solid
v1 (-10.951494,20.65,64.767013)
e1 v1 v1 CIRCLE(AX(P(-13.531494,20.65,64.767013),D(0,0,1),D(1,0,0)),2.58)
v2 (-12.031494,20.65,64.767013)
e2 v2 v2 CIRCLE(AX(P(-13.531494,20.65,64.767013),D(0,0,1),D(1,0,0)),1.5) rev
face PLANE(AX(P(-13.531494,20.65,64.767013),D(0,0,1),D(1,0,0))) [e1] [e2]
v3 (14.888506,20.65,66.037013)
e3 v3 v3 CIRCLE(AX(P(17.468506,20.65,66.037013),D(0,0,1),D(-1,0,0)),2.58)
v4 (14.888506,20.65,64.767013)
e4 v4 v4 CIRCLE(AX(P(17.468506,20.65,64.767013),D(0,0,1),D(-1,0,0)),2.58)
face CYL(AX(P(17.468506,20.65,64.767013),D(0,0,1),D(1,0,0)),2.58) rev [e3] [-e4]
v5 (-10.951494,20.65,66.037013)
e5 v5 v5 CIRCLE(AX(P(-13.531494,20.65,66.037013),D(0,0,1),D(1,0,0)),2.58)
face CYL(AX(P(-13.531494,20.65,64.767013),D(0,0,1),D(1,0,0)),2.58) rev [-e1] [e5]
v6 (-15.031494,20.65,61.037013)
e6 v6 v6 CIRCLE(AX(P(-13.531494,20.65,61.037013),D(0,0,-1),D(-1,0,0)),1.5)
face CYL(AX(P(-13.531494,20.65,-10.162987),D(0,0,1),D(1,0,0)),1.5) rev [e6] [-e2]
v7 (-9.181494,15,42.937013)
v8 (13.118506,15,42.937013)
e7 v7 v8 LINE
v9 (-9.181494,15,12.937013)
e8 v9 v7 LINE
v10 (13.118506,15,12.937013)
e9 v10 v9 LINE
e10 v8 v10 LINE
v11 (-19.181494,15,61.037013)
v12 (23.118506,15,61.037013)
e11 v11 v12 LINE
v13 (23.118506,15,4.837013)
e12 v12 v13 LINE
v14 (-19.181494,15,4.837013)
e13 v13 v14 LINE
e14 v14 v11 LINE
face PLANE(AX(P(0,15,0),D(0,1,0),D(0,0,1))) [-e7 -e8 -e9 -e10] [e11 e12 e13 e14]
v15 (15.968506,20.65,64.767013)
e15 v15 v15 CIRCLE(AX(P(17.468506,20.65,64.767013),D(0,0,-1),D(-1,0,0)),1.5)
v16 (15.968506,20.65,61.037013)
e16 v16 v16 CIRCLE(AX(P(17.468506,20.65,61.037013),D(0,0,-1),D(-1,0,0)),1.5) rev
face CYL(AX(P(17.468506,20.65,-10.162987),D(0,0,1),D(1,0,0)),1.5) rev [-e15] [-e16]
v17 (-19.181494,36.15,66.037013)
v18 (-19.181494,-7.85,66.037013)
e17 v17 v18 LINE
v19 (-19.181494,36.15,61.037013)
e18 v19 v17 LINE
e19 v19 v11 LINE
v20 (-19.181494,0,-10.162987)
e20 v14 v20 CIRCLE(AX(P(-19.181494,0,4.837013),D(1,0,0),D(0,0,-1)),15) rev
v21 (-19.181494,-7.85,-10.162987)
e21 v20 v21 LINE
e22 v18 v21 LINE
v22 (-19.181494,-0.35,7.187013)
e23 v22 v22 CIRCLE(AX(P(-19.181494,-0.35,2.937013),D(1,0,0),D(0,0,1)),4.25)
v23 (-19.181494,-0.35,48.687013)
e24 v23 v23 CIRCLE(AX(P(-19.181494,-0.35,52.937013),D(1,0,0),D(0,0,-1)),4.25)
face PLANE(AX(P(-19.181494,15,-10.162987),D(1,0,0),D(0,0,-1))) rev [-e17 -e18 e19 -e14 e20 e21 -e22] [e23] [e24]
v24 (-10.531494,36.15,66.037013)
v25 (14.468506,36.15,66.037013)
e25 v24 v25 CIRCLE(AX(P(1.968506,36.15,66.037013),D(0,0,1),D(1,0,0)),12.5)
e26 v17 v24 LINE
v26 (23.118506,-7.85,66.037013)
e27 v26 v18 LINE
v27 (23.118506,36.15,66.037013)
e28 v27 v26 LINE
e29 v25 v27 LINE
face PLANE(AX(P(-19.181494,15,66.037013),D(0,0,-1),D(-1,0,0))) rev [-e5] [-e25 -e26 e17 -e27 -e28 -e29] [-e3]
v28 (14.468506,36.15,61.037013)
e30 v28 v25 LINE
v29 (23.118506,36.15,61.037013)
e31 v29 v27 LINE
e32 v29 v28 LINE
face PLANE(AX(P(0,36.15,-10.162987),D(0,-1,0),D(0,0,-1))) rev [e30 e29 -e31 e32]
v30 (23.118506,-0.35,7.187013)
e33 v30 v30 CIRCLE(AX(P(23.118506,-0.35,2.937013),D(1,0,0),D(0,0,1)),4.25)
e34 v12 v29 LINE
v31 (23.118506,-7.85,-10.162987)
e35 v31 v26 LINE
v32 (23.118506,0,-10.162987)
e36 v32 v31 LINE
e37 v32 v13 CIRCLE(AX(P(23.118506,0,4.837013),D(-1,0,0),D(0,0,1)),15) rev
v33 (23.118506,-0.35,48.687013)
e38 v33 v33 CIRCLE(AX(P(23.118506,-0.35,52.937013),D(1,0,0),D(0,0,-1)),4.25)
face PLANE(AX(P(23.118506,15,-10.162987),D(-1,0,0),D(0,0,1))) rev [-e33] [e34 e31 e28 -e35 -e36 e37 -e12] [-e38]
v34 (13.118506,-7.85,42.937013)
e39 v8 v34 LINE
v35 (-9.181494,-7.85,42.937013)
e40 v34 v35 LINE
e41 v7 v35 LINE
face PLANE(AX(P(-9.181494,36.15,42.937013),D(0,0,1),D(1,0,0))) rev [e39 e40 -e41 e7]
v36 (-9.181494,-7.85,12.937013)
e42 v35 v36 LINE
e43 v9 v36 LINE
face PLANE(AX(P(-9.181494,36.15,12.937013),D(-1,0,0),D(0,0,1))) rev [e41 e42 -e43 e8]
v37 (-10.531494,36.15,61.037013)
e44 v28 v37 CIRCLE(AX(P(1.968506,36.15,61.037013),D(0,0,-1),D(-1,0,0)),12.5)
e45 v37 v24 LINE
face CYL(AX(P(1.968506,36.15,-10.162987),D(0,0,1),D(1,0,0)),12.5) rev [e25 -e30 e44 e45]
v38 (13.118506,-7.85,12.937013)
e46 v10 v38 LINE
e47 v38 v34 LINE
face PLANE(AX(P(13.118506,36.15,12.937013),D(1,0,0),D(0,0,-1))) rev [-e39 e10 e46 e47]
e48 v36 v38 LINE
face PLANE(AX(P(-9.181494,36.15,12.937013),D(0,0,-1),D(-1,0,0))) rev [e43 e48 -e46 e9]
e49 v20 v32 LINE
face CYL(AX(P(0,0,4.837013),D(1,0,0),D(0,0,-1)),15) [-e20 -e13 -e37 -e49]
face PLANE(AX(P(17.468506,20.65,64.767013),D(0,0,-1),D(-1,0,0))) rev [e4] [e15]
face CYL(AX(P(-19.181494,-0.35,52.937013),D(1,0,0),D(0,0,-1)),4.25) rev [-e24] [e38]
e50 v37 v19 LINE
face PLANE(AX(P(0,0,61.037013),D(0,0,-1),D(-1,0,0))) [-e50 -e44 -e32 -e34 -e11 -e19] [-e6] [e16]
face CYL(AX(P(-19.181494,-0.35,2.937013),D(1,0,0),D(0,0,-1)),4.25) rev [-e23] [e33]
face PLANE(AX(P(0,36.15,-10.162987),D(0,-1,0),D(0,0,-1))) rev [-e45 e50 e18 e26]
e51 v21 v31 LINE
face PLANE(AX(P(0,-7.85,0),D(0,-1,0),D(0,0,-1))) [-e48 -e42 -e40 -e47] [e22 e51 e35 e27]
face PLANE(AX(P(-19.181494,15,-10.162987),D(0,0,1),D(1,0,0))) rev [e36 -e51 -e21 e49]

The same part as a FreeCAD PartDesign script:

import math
import FreeCAD as App
import Part
import Sketcher
from FreeCAD import Vector


def edges_at(feature, points):
    """Names of the edges that pass closest to the given points."""
    edges = feature.Shape.Edges
    near = lambda p: min(range(len(edges)), key=lambda i: edges[i].distToShape(Part.Vertex(*p))[0])
    return sorted({f"Edge{near(p) + 1}" for p in points})


def add_polygon(sketch, points):
    """Adds a closed chain of lines whose ends are joined by coincident constraints."""
    first, n = sketch.GeometryCount, len(points)
    for a, b in zip(points, points[1:] + points[:1]):
        sketch.addGeometry(Part.LineSegment(App.Vector(*a, 0), App.Vector(*b, 0)), False)
    for i in range(n):
        sketch.addConstraint(Sketcher.Constraint("Coincident", first + i, 2, first + (i + 1) % n, 1))

doc = App.newDocument("Part")
body = doc.addObject("PartDesign::Body", "Body")

sketch1 = body.newObject("Sketcher::SketchObject", "Sketch")
sketch1.AttachmentSupport = (doc.getObject("XZ_Plane"), [""])
sketch1.MapMode = "FlatFace"
add_polygon(sketch1, [(-19, -10), (-19, 66), (23, 66), (23, -10)])
sketch1.addConstraint([
    Sketcher.Constraint("Vertical", 0),
    Sketcher.Constraint("Horizontal", 1),
    Sketcher.Constraint("Vertical", 2),
    Sketcher.Constraint("Horizontal", 3),
    Sketcher.Constraint("DistanceX", 1, 1, 1, 2, 42.3),
    Sketcher.Constraint("DistanceY", 0, 1, 0, 2, 76.2),
    Sketcher.Constraint("DistanceX", 0, 2, -1, 1, 19.181494),
    Sketcher.Constraint("DistanceY", -1, 1, 0, 2, 66.037013),
])
pad1 = body.newObject("PartDesign::Pad", "Pad")
pad1.Profile = sketch1
pad1.Length = 15
pad1.Reversed = True

sketch2 = body.newObject("Sketcher::SketchObject", "Sketch001")
sketch2.AttachmentSupport = (doc.getObject("XY_Plane"), [""])
sketch2.MapMode = "FlatFace"
sketch2.AttachmentOffset = App.Placement(Vector(0, 0, 66.037013), App.Rotation())
add_polygon(sketch2, [(-19, 57), (-19, 15), (23, 15), (23, 57)])
sketch2.addConstraint([
    Sketcher.Constraint("Vertical", 0),
    Sketcher.Constraint("Horizontal", 1),
    Sketcher.Constraint("Vertical", 2),
    Sketcher.Constraint("Horizontal", 3),
    Sketcher.Constraint("Equal", 3, 0),
    Sketcher.Constraint("DistanceX", 1, 1, 1, 2, 42.3),
    Sketcher.Constraint("DistanceY", -1, 1, 0, 2, 15.0),
    Sketcher.Constraint("DistanceX", 0, 2, -1, 1, 19.181494),
])
pad2 = body.newObject("PartDesign::Pad", "Pad001")
pad2.Profile = sketch2
pad2.Length = 5
pad2.Reversed = True

sketch3 = body.newObject("Sketcher::SketchObject", "Sketch002")
sketch3.AttachmentSupport = (doc.getObject("XY_Plane"), [""])
sketch3.MapMode = "FlatFace"
sketch3.AttachmentOffset = App.Placement(Vector(0, 0, 66.037013), App.Rotation())
sketch3.addGeometry([
    Part.ArcOfCircle(Part.Circle(Vector(2, 36, 0), Vector(0, 0, 1), 12), math.radians(180), math.radians(360)),
    Part.LineSegment(Vector(14, 36, 0), Vector(23, 36, 0)),
    Part.LineSegment(Vector(23, 36, 0), Vector(23, 57, 0)),
    Part.LineSegment(Vector(23, 57, 0), Vector(-19, 57, 0)),
    Part.LineSegment(Vector(-19, 57, 0), Vector(-19, 36, 0)),
    Part.LineSegment(Vector(-19, 36, 0), Vector(-11, 36, 0)),
], False)
sketch3.addConstraint([
    Sketcher.Constraint("Coincident", 0, 2, 1, 1),
    Sketcher.Constraint("Coincident", 1, 2, 2, 1),
    Sketcher.Constraint("Coincident", 2, 2, 3, 1),
    Sketcher.Constraint("Coincident", 3, 2, 4, 1),
    Sketcher.Constraint("Coincident", 4, 2, 5, 1),
    Sketcher.Constraint("Coincident", 5, 2, 0, 1),
    Sketcher.Constraint("Horizontal", 1),
    Sketcher.Constraint("Vertical", 2),
    Sketcher.Constraint("Horizontal", 3),
    Sketcher.Constraint("Vertical", 4),
    Sketcher.Constraint("Horizontal", 5),
    Sketcher.Constraint("Horizontal", 1, 2, 4, 2),
    Sketcher.Constraint("Equal", 1, 5),
    Sketcher.Constraint("Radius", 0, 12.5),
    Sketcher.Constraint("DistanceX", 3, 2, 3, 1, 42.3),
    Sketcher.Constraint("DistanceY", 2, 1, 2, 2, 21.15),
    Sketcher.Constraint("DistanceY", -1, 1, 2, 2, 57.3),
    Sketcher.Constraint("DistanceY", -1, 1, 0, 3, 36.15),
    Sketcher.Constraint("DistanceX", -1, 1, 0, 3, 1.968506),
])
pocket1 = body.newObject("PartDesign::Pocket", "Pocket")
pocket1.Profile = sketch3
pocket1.Type = "ThroughAll"

sketch4 = body.newObject("Sketcher::SketchObject", "Sketch003")
sketch4.AttachmentSupport = (doc.getObject("XY_Plane"), [""])
sketch4.MapMode = "FlatFace"
sketch4.AttachmentOffset = App.Placement(Vector(0, 0, 66.037013), App.Rotation())
sketch4.addGeometry([
    Part.Circle(Vector(-13.5, 20.6, 0), Vector(0, 0, 1), 1.5),
    Part.Circle(Vector(17.5, 20.6, 0), Vector(0, 0, 1), 1.5),
], False)
sketch4.addConstraint([
    Sketcher.Constraint("Equal", 0, 1),
    Sketcher.Constraint("Horizontal", 0, 3, 1, 3),
    Sketcher.Constraint("Diameter", 0, 3.0),
    Sketcher.Constraint("DistanceX", 0, 3, 1, 3, 31.0),
    Sketcher.Constraint("DistanceY", -1, 1, 0, 3, 20.65),
    Sketcher.Constraint("DistanceX", 0, 3, -1, 1, 13.531494),
])
pocket2 = body.newObject("PartDesign::Pocket", "Pocket001")
pocket2.Profile = sketch4
pocket2.Type = "ThroughAll"

sketch5 = body.newObject("Sketcher::SketchObject", "Sketch004")
sketch5.AttachmentSupport = (doc.getObject("XY_Plane"), [""])
sketch5.MapMode = "FlatFace"
sketch5.AttachmentOffset = App.Placement(Vector(0, 0, 66.037013), App.Rotation())
sketch5.addGeometry([
    Part.Circle(Vector(-13.5, 20.6, 0), Vector(0, 0, 1), 2.6),
    Part.Circle(Vector(17.5, 20.6, 0), Vector(0, 0, 1), 2.6),
], False)
sketch5.addConstraint([
    Sketcher.Constraint("Equal", 0, 1),
    Sketcher.Constraint("Horizontal", 0, 3, 1, 3),
    Sketcher.Constraint("Diameter", 0, 5.16),
    Sketcher.Constraint("DistanceX", 0, 3, 1, 3, 31.0),
    Sketcher.Constraint("DistanceY", -1, 1, 0, 3, 20.65),
    Sketcher.Constraint("DistanceX", 0, 3, -1, 1, 13.531494),
])
pocket3 = body.newObject("PartDesign::Pocket", "Pocket002")
pocket3.Profile = sketch5
pocket3.Length = 1.27

sketch6 = body.newObject("Sketcher::SketchObject", "Sketch005")
sketch6.AttachmentSupport = (doc.getObject("XZ_Plane"), [""])
sketch6.MapMode = "FlatFace"
add_polygon(sketch6, [(-9, 43), (-9, 13), (13, 13), (13, 43)])
sketch6.addConstraint([
    Sketcher.Constraint("Vertical", 0),
    Sketcher.Constraint("Horizontal", 1),
    Sketcher.Constraint("Vertical", 2),
    Sketcher.Constraint("Horizontal", 3),
    Sketcher.Constraint("DistanceY", 0, 2, 0, 1, 30.0),
    Sketcher.Constraint("DistanceX", 1, 1, 1, 2, 22.3),
    Sketcher.Constraint("DistanceX", 0, 2, -1, 1, 9.181494),
    Sketcher.Constraint("DistanceY", -1, 1, 0, 2, 12.937013),
])
pocket4 = body.newObject("PartDesign::Pocket", "Pocket003")
pocket4.Profile = sketch6
pocket4.Type = "ThroughAll"

sketch7 = body.newObject("Sketcher::SketchObject", "Sketch006")
sketch7.AttachmentSupport = (doc.getObject("XZ_Plane"), [""])
sketch7.MapMode = "FlatFace"
add_polygon(sketch7, [(-19, 66), (-19, -10), (23, -10), (23, 66)])
add_polygon(sketch7, [(13, 13), (-9, 13), (-9, 43), (13, 43)])
sketch7.addConstraint([
    Sketcher.Constraint("Vertical", 0),
    Sketcher.Constraint("Horizontal", 1),
    Sketcher.Constraint("Vertical", 2),
    Sketcher.Constraint("Horizontal", 3),
    Sketcher.Constraint("Horizontal", 4),
    Sketcher.Constraint("Vertical", 5),
    Sketcher.Constraint("Horizontal", 6),
    Sketcher.Constraint("Vertical", 7),
    Sketcher.Constraint("DistanceY", 5, 1, 5, 2, 30.0),
    Sketcher.Constraint("DistanceX", 1, 1, 1, 2, 42.3),
    Sketcher.Constraint("DistanceX", 4, 2, 4, 1, 22.3),
    Sketcher.Constraint("DistanceY", 0, 2, 0, 1, 76.2),
    Sketcher.Constraint("DistanceX", 0, 2, 4, 2, 10.0),
    Sketcher.Constraint("DistanceY", 0, 2, 4, 2, 23.1),
    Sketcher.Constraint("DistanceX", 0, 2, -1, 1, 19.181494),
    Sketcher.Constraint("DistanceY", 0, 2, -1, 1, 10.162987),
])
pad3 = body.newObject("PartDesign::Pad", "Pad002")
pad3.Profile = sketch7
pad3.Length = 7.85

sketch8 = body.newObject("Sketcher::SketchObject", "Sketch007")
sketch8.AttachmentSupport = (doc.getObject("YZ_Plane"), [""])
sketch8.MapMode = "FlatFace"
sketch8.AttachmentOffset = App.Placement(Vector(0, 0, 23.118506), App.Rotation())
sketch8.addGeometry([
    Part.Circle(Vector(-0.3, 52.9, 0), Vector(0, 0, 1), 4.2),
    Part.Circle(Vector(-0.3, 2.9, 0), Vector(0, 0, 1), 4.2),
], False)
sketch8.addConstraint([
    Sketcher.Constraint("Equal", 0, 1),
    Sketcher.Constraint("Vertical", 0, 3, 1, 3),
    Sketcher.Constraint("Diameter", 0, 8.5),
    Sketcher.Constraint("DistanceY", 1, 3, 0, 3, 50.0),
    Sketcher.Constraint("DistanceX", 0, 3, -1, 1, 0.35),
    Sketcher.Constraint("DistanceY", -1, 1, 0, 3, 52.937013),
])
pocket5 = body.newObject("PartDesign::Pocket", "Pocket004")
pocket5.Profile = sketch8
pocket5.Type = "ThroughAll"
doc.recompute()

fillet = body.newObject("PartDesign::Fillet", "Fillet")
fillet.Base = (pocket5, edges_at(pocket5, [(1.969, 15, -10.163)]))
fillet.Radius = 15

doc.recompute()
